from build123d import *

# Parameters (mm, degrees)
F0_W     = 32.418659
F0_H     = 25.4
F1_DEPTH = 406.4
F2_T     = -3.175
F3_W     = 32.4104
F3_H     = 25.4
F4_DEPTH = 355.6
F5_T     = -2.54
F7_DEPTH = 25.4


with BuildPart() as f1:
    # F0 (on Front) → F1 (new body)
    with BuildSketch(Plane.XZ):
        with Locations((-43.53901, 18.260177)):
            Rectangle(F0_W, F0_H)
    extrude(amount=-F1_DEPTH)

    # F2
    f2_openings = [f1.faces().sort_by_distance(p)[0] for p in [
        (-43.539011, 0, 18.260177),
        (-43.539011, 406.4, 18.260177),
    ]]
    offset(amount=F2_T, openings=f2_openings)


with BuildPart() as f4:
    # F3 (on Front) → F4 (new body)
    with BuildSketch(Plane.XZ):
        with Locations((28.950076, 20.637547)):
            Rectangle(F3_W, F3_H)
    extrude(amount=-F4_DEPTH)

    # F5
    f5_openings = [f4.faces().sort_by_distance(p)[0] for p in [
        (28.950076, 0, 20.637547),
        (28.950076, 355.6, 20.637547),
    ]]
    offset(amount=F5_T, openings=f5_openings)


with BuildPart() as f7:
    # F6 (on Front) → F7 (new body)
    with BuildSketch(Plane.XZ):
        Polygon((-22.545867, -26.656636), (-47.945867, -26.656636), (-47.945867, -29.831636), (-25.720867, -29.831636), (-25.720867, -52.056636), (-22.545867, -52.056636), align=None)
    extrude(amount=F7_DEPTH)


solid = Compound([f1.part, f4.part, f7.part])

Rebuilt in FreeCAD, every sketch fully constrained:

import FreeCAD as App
import Part
import Sketcher

V = App.Vector
Q = App.Units.Quantity


def faces_at(feature, points):
    """Names of the faces that lie closest to the given points."""
    faces = feature.Shape.Faces
    near = lambda p: min(range(len(faces)), key=lambda i: faces[i].distToShape(Part.Vertex(*p))[0])
    return sorted({f"Face{near(p) + 1}" for p in points})


def add_polygon(sketch, points):
    """Adds a closed chain of lines whose ends are joined by coincident constraints."""
    first, n = sketch.GeometryCount, len(points)
    for a, b in zip(points, points[1:] + points[:1]):
        sketch.addGeometry(Part.LineSegment(App.Vector(*a, 0), App.Vector(*b, 0)), False)
    for i in range(n):
        sketch.addConstraint(Sketcher.Constraint("Coincident", first + i, 2, first + (i + 1) % n, 1))

doc = App.newDocument("Part")
body = doc.addObject("PartDesign::Body", "Body")

# Sketch on XZ plane
sketch1 = body.newObject("Sketcher::SketchObject", "Sketch")
sketch1.AttachmentSupport = (doc.getObject("XZ_Plane"), [""])
sketch1.MapMode = "FlatFace"
add_polygon(sketch1, [(-60, 31), (-60, 6), (-27, 6), (-27, 31)])  # lines 0-3
sketch1.addConstraint(Sketcher.Constraint("Vertical", 0))
sketch1.addConstraint(Sketcher.Constraint("Horizontal", 1))
sketch1.addConstraint(Sketcher.Constraint("Vertical", 2))
sketch1.addConstraint(Sketcher.Constraint("Horizontal", 3))
sketch1.addConstraint(Sketcher.Constraint("DistanceY", 0, 2, 0, 1, Q("1 in")))
sketch1.addConstraint(Sketcher.Constraint("DistanceX", 1, 1, 1, 2, Q("32.418659 mm")))
sketch1.addConstraint(Sketcher.Constraint("DistanceX", 0, 2, -1, 1, Q("59.74834 mm")))
sketch1.addConstraint(Sketcher.Constraint("DistanceY", -1, 1, 0, 2, Q("5.560177 mm")))
pad1 = body.newObject("PartDesign::Pad", "Pad")
pad1.Profile = sketch1
pad1.Length = Q("16 in")
pad1.Reversed = True
doc.recompute()

thickness = body.newObject("PartDesign::Thickness", "Thickness")
thickness.Base = (pad1, faces_at(pad1, [(-43.539, 0, 18.26), (-43.539, 406.4, 18.26)]))
thickness.Value = Q("0.125 in")
thickness.Reversed = True
thickness.Join = "Arc"
body2 = doc.addObject("PartDesign::Body", "Body001")

# Sketch on XZ plane
sketch2 = body2.newObject("Sketcher::SketchObject", "Sketch001")
sketch2.AttachmentSupport = (doc.getObject("XZ_Plane001"), [""])
sketch2.MapMode = "FlatFace"
add_polygon(sketch2, [(13, 33), (13, 8), (45, 8), (45, 33)])  # lines 0-3
sketch2.addConstraint(Sketcher.Constraint("Vertical", 0))
sketch2.addConstraint(Sketcher.Constraint("Horizontal", 1))
sketch2.addConstraint(Sketcher.Constraint("Vertical", 2))
sketch2.addConstraint(Sketcher.Constraint("Horizontal", 3))
sketch2.addConstraint(Sketcher.Constraint("DistanceY", 0, 2, 0, 1, Q("1 in")))
sketch2.addConstraint(Sketcher.Constraint("DistanceX", 1, 1, 1, 2, Q("1.276 in")))
sketch2.addConstraint(Sketcher.Constraint("DistanceX", -1, 1, 0, 2, Q("12.744876 mm")))
sketch2.addConstraint(Sketcher.Constraint("DistanceY", -1, 1, 0, 2, Q("7.937547 mm")))
pad2 = body2.newObject("PartDesign::Pad", "Pad001")
pad2.Profile = sketch2
pad2.Length = Q("14 in")
pad2.Reversed = True
doc.recompute()

thickness2 = body2.newObject("PartDesign::Thickness", "Thickness001")
thickness2.Base = (pad2, faces_at(pad2, [(28.95, 0, 20.638), (28.95, 355.6, 20.638)]))
thickness2.Value = Q("0.1 in")
thickness2.Reversed = True
thickness2.Join = "Arc"
body3 = doc.addObject("PartDesign::Body", "Body002")

# Sketch on XZ plane
sketch3 = body3.newObject("Sketcher::SketchObject", "Sketch002")
sketch3.AttachmentSupport = (doc.getObject("XZ_Plane002"), [""])
sketch3.MapMode = "FlatFace"
add_polygon(sketch3, [(-22.5, -26.7), (-47.9, -26.7), (-47.9, -29.8), (-25.7, -29.8), (-25.7, -52.1), (-22.5, -52.1)])  # lines 0-5
sketch3.addConstraint(Sketcher.Constraint("Horizontal", 0))
sketch3.addConstraint(Sketcher.Constraint("Vertical", 1))
sketch3.addConstraint(Sketcher.Constraint("Horizontal", 2))
sketch3.addConstraint(Sketcher.Constraint("Vertical", 3))
sketch3.addConstraint(Sketcher.Constraint("Horizontal", 4))
sketch3.addConstraint(Sketcher.Constraint("Vertical", 5))
sketch3.addConstraint(Sketcher.Constraint("Equal", 4, 1))
sketch3.addConstraint(Sketcher.Constraint("Equal", 2, 3))
sketch3.addConstraint(Sketcher.Constraint("DistanceX", 0, 2, 0, 1, Q("1 in")))
sketch3.addConstraint(Sketcher.Constraint("DistanceX", 2, 1, 2, 2, Q("0.875 in")))
sketch3.addConstraint(Sketcher.Constraint("DistanceX", 0, 2, -1, 1, Q("47.945867 mm")))
sketch3.addConstraint(Sketcher.Constraint("DistanceY", 0, 2, -1, 1, Q("26.656636 mm")))
pad3 = body3.newObject("PartDesign::Pad", "Pad002")
pad3.Profile = sketch3
pad3.Length = Q("1 in")

doc.recompute()
